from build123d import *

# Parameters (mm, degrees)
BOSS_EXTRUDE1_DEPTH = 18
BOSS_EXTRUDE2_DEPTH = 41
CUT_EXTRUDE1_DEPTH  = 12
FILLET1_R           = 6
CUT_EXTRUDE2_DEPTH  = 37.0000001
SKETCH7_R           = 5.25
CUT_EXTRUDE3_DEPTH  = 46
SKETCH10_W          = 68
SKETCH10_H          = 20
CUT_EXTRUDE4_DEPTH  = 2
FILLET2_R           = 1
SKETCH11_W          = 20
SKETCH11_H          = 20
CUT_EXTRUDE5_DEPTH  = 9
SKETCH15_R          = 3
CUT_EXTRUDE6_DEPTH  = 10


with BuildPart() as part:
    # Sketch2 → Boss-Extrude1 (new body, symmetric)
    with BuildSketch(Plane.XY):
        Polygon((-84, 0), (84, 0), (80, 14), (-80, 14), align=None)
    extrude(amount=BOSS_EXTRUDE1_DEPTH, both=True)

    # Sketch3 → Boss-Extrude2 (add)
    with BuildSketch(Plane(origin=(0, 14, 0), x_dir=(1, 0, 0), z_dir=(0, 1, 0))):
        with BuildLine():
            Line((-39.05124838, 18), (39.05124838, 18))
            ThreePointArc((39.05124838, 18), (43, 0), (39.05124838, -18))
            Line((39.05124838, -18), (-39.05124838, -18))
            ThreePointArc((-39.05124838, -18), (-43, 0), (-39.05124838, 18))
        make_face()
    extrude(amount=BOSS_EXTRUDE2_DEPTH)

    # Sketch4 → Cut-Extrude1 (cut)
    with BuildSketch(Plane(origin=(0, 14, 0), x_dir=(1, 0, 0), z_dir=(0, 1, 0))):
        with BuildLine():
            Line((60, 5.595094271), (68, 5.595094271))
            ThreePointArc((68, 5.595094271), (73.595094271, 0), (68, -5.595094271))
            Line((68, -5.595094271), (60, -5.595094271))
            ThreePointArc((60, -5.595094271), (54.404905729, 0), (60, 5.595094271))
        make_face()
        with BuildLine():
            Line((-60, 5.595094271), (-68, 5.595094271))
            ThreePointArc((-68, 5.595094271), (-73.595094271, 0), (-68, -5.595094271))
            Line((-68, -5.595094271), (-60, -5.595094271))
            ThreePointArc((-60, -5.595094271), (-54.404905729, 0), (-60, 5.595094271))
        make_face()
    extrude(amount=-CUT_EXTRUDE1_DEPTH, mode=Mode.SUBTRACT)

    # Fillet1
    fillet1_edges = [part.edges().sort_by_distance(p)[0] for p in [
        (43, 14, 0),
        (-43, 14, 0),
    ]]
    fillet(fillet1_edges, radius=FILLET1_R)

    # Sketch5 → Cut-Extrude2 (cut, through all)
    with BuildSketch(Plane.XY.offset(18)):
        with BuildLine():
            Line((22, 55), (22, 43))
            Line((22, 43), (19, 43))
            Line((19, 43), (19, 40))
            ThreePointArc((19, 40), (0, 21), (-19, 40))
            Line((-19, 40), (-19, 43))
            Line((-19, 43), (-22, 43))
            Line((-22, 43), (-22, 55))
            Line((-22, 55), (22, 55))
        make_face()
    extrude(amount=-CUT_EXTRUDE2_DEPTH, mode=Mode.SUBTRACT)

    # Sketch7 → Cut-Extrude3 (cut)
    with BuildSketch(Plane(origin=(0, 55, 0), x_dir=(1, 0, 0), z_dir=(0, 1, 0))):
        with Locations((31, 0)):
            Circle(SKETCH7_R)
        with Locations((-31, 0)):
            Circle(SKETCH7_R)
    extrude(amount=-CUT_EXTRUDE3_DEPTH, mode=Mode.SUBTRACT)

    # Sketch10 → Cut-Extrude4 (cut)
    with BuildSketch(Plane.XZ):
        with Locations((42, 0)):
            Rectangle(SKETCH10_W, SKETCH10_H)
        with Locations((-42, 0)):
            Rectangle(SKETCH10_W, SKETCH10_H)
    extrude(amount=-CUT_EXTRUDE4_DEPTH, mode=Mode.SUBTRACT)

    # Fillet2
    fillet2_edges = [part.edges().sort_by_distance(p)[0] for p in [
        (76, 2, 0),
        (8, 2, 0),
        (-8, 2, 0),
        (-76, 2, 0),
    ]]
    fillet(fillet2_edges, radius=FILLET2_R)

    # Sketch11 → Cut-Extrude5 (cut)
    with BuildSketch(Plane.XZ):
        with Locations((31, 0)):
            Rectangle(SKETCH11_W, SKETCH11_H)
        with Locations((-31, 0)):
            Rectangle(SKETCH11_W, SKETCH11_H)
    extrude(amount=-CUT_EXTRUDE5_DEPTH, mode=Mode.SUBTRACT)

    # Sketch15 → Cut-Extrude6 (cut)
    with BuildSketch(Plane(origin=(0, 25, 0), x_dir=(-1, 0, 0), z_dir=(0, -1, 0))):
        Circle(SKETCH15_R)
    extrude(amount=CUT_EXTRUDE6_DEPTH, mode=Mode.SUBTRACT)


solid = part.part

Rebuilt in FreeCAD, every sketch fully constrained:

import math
import FreeCAD as App
import Part
import Sketcher
from FreeCAD import Vector
Q = App.Units.Quantity


def edges_at(feature, points):
    """Names of the edges that pass closest to the given points."""
    edges = feature.Shape.Edges
    near = lambda p: min(range(len(edges)), key=lambda i: edges[i].distToShape(Part.Vertex(*p))[0])
    return sorted({f"Edge{near(p) + 1}" for p in points})


def add_polygon(sketch, points):
    """Adds a closed chain of lines whose ends are joined by coincident constraints."""
    first, n = sketch.GeometryCount, len(points)
    for a, b in zip(points, points[1:] + points[:1]):
        sketch.addGeometry(Part.LineSegment(App.Vector(*a, 0), App.Vector(*b, 0)), False)
    for i in range(n):
        sketch.addConstraint(Sketcher.Constraint("Coincident", first + i, 2, first + (i + 1) % n, 1))

doc = App.newDocument("Part")
body = doc.addObject("PartDesign::Body", "Body")

# Sketch on XY plane
sketch1 = doc.addObject("Sketcher::SketchObject", "Sketch")
body.addObject(sketch1)
sketch1.AttachmentSupport = (doc.XY_Plane, [""])
sketch1.MapMode = "FlatFace"
add_polygon(sketch1, [(-84, 0), (84, 0), (80, 14), (-80, 14)])  # lines 0-3
sketch1.addConstraint([
    Sketcher.Constraint("Horizontal", 0),
    Sketcher.Constraint("Horizontal", 2),
    Sketcher.Constraint("Symmetric", 0, 2, 3, 2, -1, 1),
    Sketcher.Constraint("Equal", 1, 3),
    Sketcher.Constraint("DistanceX", 0, 1, 0, 2, Q("168 mm")),
    Sketcher.Constraint("DistanceX", 2, 2, 2, 1, Q("160 mm")),
    Sketcher.Constraint("DistanceY", -1, 1, 1, 2, Q("14 mm")),
])
pad1 = doc.addObject("PartDesign::Pad", "Pad")
body.addObject(pad1)
pad1.Profile = sketch1
pad1.Length = 36
pad1.Midplane = True

# Sketch on XZ plane
sketch2 = doc.addObject("Sketcher::SketchObject", "Sketch001")
body.addObject(sketch2)
sketch2.AttachmentSupport = (doc.XZ_Plane, [""])
sketch2.MapMode = "FlatFace"
sketch2.AttachmentOffset = App.Placement(Vector(0, 0, -14), App.Rotation())
sketch2.addGeometry([
    Part.LineSegment(Vector(39, -18, 0), Vector(-39, -18, 0)),
    Part.ArcOfCircle(Part.Circle(Vector(0, 0, 0), Vector(0, 0, 1), 43), math.radians(155), math.radians(205)),
    Part.LineSegment(Vector(-39, 18, 0), Vector(39, 18, 0)),
    Part.ArcOfCircle(Part.Circle(Vector(0, 0, 0), Vector(0, 0, 1), 43), math.radians(-25), math.radians(25)),
], False)
sketch2.addConstraint([
    Sketcher.Constraint("Coincident", 0, 2, 1, 2),
    Sketcher.Constraint("Coincident", 1, 1, 2, 1),
    Sketcher.Constraint("Coincident", 2, 2, 3, 2),
    Sketcher.Constraint("Coincident", 3, 1, 0, 1),
    Sketcher.Constraint("Horizontal", 0),
    Sketcher.Constraint("Horizontal", 2),
    Sketcher.Constraint("Coincident", 1, 3, -1, 1),
    Sketcher.Constraint("Coincident", 3, 3, -1, 1),
    Sketcher.Constraint("Equal", 1, 3),
    Sketcher.Constraint("Vertical", 0, 2, 1, 1),
    Sketcher.Constraint("Radius", 1, Q("43 mm")),
    Sketcher.Constraint("DistanceY", 0, 2, -1, 1, Q("18 mm")),
])
pad2 = doc.addObject("PartDesign::Pad", "Pad001")
body.addObject(pad2)
pad2.Profile = sketch2
pad2.Length = 41
pad2.Reversed = True

# Sketch on XZ plane
sketch3 = doc.addObject("Sketcher::SketchObject", "Sketch002")
body.addObject(sketch3)
sketch3.AttachmentSupport = (doc.XZ_Plane, [""])
sketch3.MapMode = "FlatFace"
sketch3.AttachmentOffset = App.Placement(Vector(0, 0, -14), App.Rotation())
sketch3.addGeometry([
    Part.LineSegment(Vector(68, -6, 0), Vector(60, -6, 0)),  # 0
    Part.ArcOfCircle(Part.Circle(Vector(60, 0, 0), Vector(0, 0, 1), 6), math.radians(90), math.radians(270)),  # 1
    Part.LineSegment(Vector(60, 6, 0), Vector(68, 6, 0)),  # 2
    Part.ArcOfCircle(Part.Circle(Vector(68, 0, 0), Vector(0, 0, 1), 6), math.radians(-90), math.radians(90)),  # 3
    Part.LineSegment(Vector(-60, -6, 0), Vector(-68, -6, 0)),  # 4
    Part.ArcOfCircle(Part.Circle(Vector(-68, 0, 0), Vector(0, 0, 1), 6), math.radians(90), math.radians(270)),  # 5
    Part.LineSegment(Vector(-68, 6, 0), Vector(-60, 6, 0)),  # 6
    Part.ArcOfCircle(Part.Circle(Vector(-60, 0, 0), Vector(0, 0, 1), 6), math.radians(-90), math.radians(90)),  # 7
], False)
sketch3.addConstraint([
    Sketcher.Constraint("Tangent", 0, 2, 1, 2),
    Sketcher.Constraint("Tangent", 1, 1, 2, 1),
    Sketcher.Constraint("Tangent", 2, 2, 3, 2),
    Sketcher.Constraint("Tangent", 3, 1, 0, 1),
    Sketcher.Constraint("Tangent", 4, 2, 5, 2),
    Sketcher.Constraint("Tangent", 5, 1, 6, 1),
    Sketcher.Constraint("Tangent", 6, 2, 7, 2),
    Sketcher.Constraint("Tangent", 7, 1, 4, 1),
    Sketcher.Constraint("Horizontal", 0),
    Sketcher.Constraint("Horizontal", 2),
    Sketcher.Constraint("Horizontal", 4),
    Sketcher.Constraint("Horizontal", 6),
    Sketcher.Constraint("Equal", 3, 5),
    Sketcher.Constraint("Symmetric", 3, 3, 5, 3, -1, 1),
    Sketcher.Constraint("Symmetric", 1, 3, 7, 3, -2),
    Sketcher.Constraint("DistanceX", 0, 2, 0, 1, Q("8 mm")),
    Sketcher.Constraint("DistanceX", -1, 1, 1, 3, Q("60 mm")),
    Sketcher.Constraint("Radius", 1, Q("5.595094 mm")),
])
pocket1 = doc.addObject("PartDesign::Pocket", "Pocket")
body.addObject(pocket1)
pocket1.Profile = sketch3
pocket1.Length = 12
pocket1.Reversed = True
doc.recompute()

fillet = doc.addObject("PartDesign::Fillet", "Fillet")
body.addObject(fillet)
fillet.Base = (pocket1, edges_at(pocket1, [(43, 14, 0), (-43, 14, 0)]))
fillet.Radius = 6

# Sketch on XY plane
sketch4 = doc.addObject("Sketcher::SketchObject", "Sketch003")
body.addObject(sketch4)
sketch4.AttachmentSupport = (doc.XY_Plane, [""])
sketch4.MapMode = "FlatFace"
sketch4.AttachmentOffset = App.Placement(Vector(0, 0, 18), App.Rotation())
sketch4.addGeometry([
    Part.LineSegment(Vector(22, 43, 0), Vector(22, 55, 0)),  # 0
    Part.LineSegment(Vector(22, 55, 0), Vector(-22, 55, 0)),  # 1
    Part.LineSegment(Vector(-22, 55, 0), Vector(-22, 43, 0)),  # 2
    Part.LineSegment(Vector(-22, 43, 0), Vector(-19, 43, 0)),  # 3
    Part.LineSegment(Vector(-19, 43, 0), Vector(-19, 40, 0)),  # 4
    Part.ArcOfCircle(Part.Circle(Vector(0, 40, 0), Vector(0, 0, 1), 19), math.radians(180), math.radians(360)),  # 5
    Part.LineSegment(Vector(19, 40, 0), Vector(19, 43, 0)),  # 6
    Part.LineSegment(Vector(19, 43, 0), Vector(22, 43, 0)),  # 7
], False)
sketch4.addConstraint([
    Sketcher.Constraint("Coincident", 0, 2, 1, 1),
    Sketcher.Constraint("Coincident", 1, 2, 2, 1),
    Sketcher.Constraint("Coincident", 2, 2, 3, 1),
    Sketcher.Constraint("Coincident", 3, 2, 4, 1),
    Sketcher.Constraint("Tangent", 4, 2, 5, 1),
    Sketcher.Constraint("Tangent", 5, 2, 6, 1),
    Sketcher.Constraint("Coincident", 6, 2, 7, 1),
    Sketcher.Constraint("Coincident", 7, 2, 0, 1),
    Sketcher.Constraint("Vertical", 0),
    Sketcher.Constraint("Horizontal", 1),
    Sketcher.Constraint("Vertical", 2),
    Sketcher.Constraint("Horizontal", 3),
    Sketcher.Constraint("Vertical", 4),
    Sketcher.Constraint("Vertical", 6),
    Sketcher.Constraint("Horizontal", 7),
    Sketcher.Constraint("Symmetric", 3, 2, 6, 2, -2),
    Sketcher.Constraint("Equal", 3, 7),
    Sketcher.Constraint("Equal", 7, 4),
    Sketcher.Constraint("Radius", 5, Q("19 mm")),
    Sketcher.Constraint("DistanceX", 1, 2, 1, 1, Q("44 mm")),
    Sketcher.Constraint("DistanceY", 0, 1, 0, 2, Q("12 mm")),
    Sketcher.Constraint("DistanceY", -1, 1, 5, 3, Q("40 mm")),
])
pocket2 = doc.addObject("PartDesign::Pocket", "Pocket001")
body.addObject(pocket2)
pocket2.Profile = sketch4
pocket2.Type = "ThroughAll"

# Sketch on XZ plane
sketch5 = doc.addObject("Sketcher::SketchObject", "Sketch004")
body.addObject(sketch5)
sketch5.AttachmentSupport = (doc.XZ_Plane, [""])
sketch5.MapMode = "FlatFace"
sketch5.AttachmentOffset = App.Placement(Vector(0, 0, -55), App.Rotation())
sketch5.addGeometry([
    Part.Circle(Vector(31, 0, 0), Vector(0, 0, 1), 5),
    Part.Circle(Vector(-31, 0, 0), Vector(0, 0, 1), 5),
], False)
sketch5.addConstraint([
    Sketcher.Constraint("Equal", 0, 1),
    Sketcher.Constraint("Symmetric", 0, 3, 1, 3, -1, 1),
    Sketcher.Constraint("PointOnObject", 0, 3, -1),
    Sketcher.Constraint("Diameter", 0, Q("10.5 mm")),
    Sketcher.Constraint("DistanceX", -1, 1, 0, 3, Q("31 mm")),
])
pocket3 = doc.addObject("PartDesign::Pocket", "Pocket002")
body.addObject(pocket3)
pocket3.Profile = sketch5
pocket3.Length = 46
pocket3.Reversed = True

# Sketch on XZ plane
sketch6 = doc.addObject("Sketcher::SketchObject", "Sketch005")
body.addObject(sketch6)
sketch6.AttachmentSupport = (doc.XZ_Plane, [""])
sketch6.MapMode = "FlatFace"
add_polygon(sketch6, [(8, 10), (8, -10), (76, -10), (76, 10)])  # lines 0-3
add_polygon(sketch6, [(-76, 10), (-76, -10), (-8, -10), (-8, 10)])  # lines 4-7
sketch6.addConstraint([
    Sketcher.Constraint("Vertical", 0),
    Sketcher.Constraint("Horizontal", 1),
    Sketcher.Constraint("Vertical", 2),
    Sketcher.Constraint("Horizontal", 3),
    Sketcher.Constraint("Vertical", 4),
    Sketcher.Constraint("Horizontal", 5),
    Sketcher.Constraint("Vertical", 6),
    Sketcher.Constraint("Horizontal", 7),
    Sketcher.Constraint("Symmetric", 2, 2, 4, 2, -1, 1),
    Sketcher.Constraint("Symmetric", 0, 2, 6, 2, -1, 1),
    Sketcher.Constraint("Horizontal", 1, 2, 4, 2),
    Sketcher.Constraint("DistanceX", 1, 1, 1, 2, Q("68 mm")),
    Sketcher.Constraint("DistanceY", 0, 2, 0, 1, Q("20 mm")),
    Sketcher.Constraint("DistanceX", -1, 1, 0, 2, Q("8 mm")),
])
pocket4 = doc.addObject("PartDesign::Pocket", "Pocket003")
body.addObject(pocket4)
pocket4.Profile = sketch6
pocket4.Length = 2
doc.recompute()

fillet2 = doc.addObject("PartDesign::Fillet", "Fillet001")
body.addObject(fillet2)
fillet2.Base = (pocket4, edges_at(pocket4, [
    (76, 2, 0),
    (8, 2, 0),
    (-8, 2, 0),
    (-76, 2, 0),
]))
fillet2.Radius = 1

# Sketch on XZ plane
sketch7 = doc.addObject("Sketcher::SketchObject", "Sketch006")
body.addObject(sketch7)
sketch7.AttachmentSupport = (doc.XZ_Plane, [""])
sketch7.MapMode = "FlatFace"
add_polygon(sketch7, [(21, 10), (21, -10), (41, -10), (41, 10)])  # lines 0-3
add_polygon(sketch7, [(-41, 10), (-41, -10), (-21, -10), (-21, 10)])  # lines 4-7
sketch7.addConstraint([
    Sketcher.Constraint("Vertical", 0),
    Sketcher.Constraint("Horizontal", 1),
    Sketcher.Constraint("Vertical", 2),
    Sketcher.Constraint("Horizontal", 3),
    Sketcher.Constraint("Vertical", 4),
    Sketcher.Constraint("Horizontal", 5),
    Sketcher.Constraint("Vertical", 6),
    Sketcher.Constraint("Horizontal", 7),
    Sketcher.Constraint("Symmetric", 2, 2, 4, 2, -1, 1),
    Sketcher.Constraint("Symmetric", 0, 2, 6, 2, -1, 1),
    Sketcher.Constraint("Horizontal", 1, 2, 4, 2),
    Sketcher.Constraint("Equal", 7, 0),
    Sketcher.Constraint("DistanceX", 1, 1, 1, 2, Q("20 mm")),
    Sketcher.Constraint("DistanceX", -1, 1, 0, 2, Q("21 mm")),
])
pocket5 = doc.addObject("PartDesign::Pocket", "Pocket004")
body.addObject(pocket5)
pocket5.Profile = sketch7
pocket5.Length = 9

# Sketch on XZ plane
sketch8 = doc.addObject("Sketcher::SketchObject", "Sketch007")
body.addObject(sketch8)
sketch8.AttachmentSupport = (doc.XZ_Plane, [""])
sketch8.MapMode = "FlatFace"
sketch8.AttachmentOffset = App.Placement(Vector(0, 0, -25), App.Rotation())
sketch8.addGeometry(Part.Circle(Vector(0, 0, 0), Vector(0, 0, 1), 3), False)
sketch8.addConstraint([
    Sketcher.Constraint("Coincident", 0, 3, -1, 1),
    Sketcher.Constraint("Diameter", 0, Q("6 mm")),
])
pocket6 = doc.addObject("PartDesign::Pocket", "Pocket005")
body.addObject(pocket6)
pocket6.Profile = sketch8
pocket6.Length = 10
pocket6.Reversed = True

doc.recompute()
